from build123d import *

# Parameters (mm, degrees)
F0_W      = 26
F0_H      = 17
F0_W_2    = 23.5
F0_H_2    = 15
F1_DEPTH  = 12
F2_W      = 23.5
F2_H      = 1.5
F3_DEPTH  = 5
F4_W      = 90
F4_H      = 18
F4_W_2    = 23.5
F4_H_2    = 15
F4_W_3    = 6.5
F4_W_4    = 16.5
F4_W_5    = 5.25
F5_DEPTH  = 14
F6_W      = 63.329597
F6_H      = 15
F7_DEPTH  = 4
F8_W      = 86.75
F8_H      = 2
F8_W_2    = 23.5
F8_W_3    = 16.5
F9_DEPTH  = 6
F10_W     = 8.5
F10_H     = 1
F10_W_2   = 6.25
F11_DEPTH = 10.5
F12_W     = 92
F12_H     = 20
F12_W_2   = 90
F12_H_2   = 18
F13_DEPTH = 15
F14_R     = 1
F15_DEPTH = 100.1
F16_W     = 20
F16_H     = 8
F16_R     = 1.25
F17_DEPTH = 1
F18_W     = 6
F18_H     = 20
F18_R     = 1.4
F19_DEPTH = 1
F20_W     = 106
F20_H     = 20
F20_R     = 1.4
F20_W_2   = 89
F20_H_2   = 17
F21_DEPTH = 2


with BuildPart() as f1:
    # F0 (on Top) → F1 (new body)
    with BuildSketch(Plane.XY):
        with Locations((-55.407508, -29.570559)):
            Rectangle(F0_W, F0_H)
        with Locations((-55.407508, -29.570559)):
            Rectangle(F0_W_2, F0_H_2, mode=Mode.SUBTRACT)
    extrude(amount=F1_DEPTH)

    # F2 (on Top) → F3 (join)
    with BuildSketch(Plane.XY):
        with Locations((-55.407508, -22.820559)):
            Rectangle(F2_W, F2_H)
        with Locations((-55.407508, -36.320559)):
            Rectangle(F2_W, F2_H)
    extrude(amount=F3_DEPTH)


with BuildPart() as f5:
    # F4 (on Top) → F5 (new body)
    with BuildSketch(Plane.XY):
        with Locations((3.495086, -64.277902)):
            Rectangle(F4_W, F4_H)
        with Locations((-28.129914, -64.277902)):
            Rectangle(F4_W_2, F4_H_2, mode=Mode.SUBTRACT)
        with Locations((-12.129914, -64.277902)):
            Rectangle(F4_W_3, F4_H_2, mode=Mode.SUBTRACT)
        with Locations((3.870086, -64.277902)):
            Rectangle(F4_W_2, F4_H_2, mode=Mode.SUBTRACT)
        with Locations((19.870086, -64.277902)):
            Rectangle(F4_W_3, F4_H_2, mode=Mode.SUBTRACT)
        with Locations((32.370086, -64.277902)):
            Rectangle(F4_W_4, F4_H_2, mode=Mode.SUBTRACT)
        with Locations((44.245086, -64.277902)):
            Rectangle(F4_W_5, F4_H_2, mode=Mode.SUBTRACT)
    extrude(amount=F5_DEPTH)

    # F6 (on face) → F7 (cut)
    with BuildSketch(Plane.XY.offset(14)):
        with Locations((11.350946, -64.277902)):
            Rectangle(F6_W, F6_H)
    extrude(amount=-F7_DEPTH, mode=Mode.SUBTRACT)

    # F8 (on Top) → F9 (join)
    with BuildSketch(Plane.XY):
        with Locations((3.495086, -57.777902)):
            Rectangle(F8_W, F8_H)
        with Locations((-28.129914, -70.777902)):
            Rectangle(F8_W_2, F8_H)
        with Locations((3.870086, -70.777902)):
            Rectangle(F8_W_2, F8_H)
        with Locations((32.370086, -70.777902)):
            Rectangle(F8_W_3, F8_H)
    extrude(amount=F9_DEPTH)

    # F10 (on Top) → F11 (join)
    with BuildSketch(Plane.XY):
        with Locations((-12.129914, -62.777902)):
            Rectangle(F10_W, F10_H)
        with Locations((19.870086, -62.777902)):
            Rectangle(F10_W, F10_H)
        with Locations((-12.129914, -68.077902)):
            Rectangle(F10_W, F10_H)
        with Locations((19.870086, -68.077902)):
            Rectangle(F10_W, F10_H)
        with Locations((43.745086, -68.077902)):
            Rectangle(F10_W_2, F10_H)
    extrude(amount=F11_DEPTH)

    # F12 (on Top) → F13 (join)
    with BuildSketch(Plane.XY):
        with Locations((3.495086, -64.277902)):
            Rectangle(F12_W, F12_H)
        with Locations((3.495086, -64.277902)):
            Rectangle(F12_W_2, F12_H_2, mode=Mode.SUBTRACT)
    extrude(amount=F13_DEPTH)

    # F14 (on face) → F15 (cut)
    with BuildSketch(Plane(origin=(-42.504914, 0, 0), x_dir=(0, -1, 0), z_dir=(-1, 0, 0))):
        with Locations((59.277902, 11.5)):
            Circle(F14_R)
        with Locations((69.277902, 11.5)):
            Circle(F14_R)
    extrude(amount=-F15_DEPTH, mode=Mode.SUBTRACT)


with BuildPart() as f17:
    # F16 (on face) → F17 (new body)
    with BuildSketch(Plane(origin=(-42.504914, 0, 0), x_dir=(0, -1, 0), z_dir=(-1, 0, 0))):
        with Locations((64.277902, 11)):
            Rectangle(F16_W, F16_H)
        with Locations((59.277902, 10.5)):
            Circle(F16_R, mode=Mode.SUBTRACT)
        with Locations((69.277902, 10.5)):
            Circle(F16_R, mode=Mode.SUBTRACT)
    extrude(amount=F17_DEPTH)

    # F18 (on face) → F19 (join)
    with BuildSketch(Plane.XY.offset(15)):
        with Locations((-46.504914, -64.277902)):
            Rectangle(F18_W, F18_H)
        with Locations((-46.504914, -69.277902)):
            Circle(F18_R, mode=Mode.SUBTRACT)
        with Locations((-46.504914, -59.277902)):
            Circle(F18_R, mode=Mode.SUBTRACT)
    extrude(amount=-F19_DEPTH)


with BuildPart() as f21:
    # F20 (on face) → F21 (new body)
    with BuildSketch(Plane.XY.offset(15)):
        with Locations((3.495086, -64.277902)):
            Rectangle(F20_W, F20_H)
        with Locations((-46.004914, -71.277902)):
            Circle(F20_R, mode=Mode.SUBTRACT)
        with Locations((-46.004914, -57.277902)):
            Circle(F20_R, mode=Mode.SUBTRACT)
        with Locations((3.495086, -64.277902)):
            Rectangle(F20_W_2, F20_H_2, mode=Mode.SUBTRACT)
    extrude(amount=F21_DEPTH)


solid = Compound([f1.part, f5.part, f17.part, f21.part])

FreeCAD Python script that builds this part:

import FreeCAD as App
import Part
import Sketcher

doc = App.newDocument("Part")
body = doc.addObject("PartDesign::Body", "Body")

sketch1 = body.newObject("Sketcher::SketchObject", "Sketch")
sketch1.AttachmentSupport = (doc.getObject("XY_Plane"), [""])
sketch1.MapMode = "FlatFace"
sketch1.addGeometry([
    Part.LineSegment(App.Vector(-68, -21, 0), App.Vector(-68, -38, 0)),
    Part.LineSegment(App.Vector(-68, -38, 0), App.Vector(-42, -38, 0)),
    Part.LineSegment(App.Vector(-42, -38, 0), App.Vector(-42, -21, 0)),
    Part.LineSegment(App.Vector(-42, -21, 0), App.Vector(-68, -21, 0)),
    Part.LineSegment(App.Vector(-44, -37, 0), App.Vector(-67, -37, 0)),
    Part.LineSegment(App.Vector(-67, -37, 0), App.Vector(-67, -22, 0)),
    Part.LineSegment(App.Vector(-67, -22, 0), App.Vector(-44, -22, 0)),
    Part.LineSegment(App.Vector(-44, -22, 0), App.Vector(-44, -37, 0)),
], False)
sketch1.addConstraint([
    Sketcher.Constraint("Coincident", 0, 2, 1, 1),
    Sketcher.Constraint("Coincident", 1, 2, 2, 1),
    Sketcher.Constraint("Coincident", 2, 2, 3, 1),
    Sketcher.Constraint("Coincident", 3, 2, 0, 1),
    Sketcher.Constraint("Coincident", 4, 2, 5, 1),
    Sketcher.Constraint("Coincident", 5, 2, 6, 1),
    Sketcher.Constraint("Coincident", 6, 2, 7, 1),
    Sketcher.Constraint("Coincident", 7, 2, 4, 1),
    Sketcher.Constraint("Vertical", 0),
    Sketcher.Constraint("Horizontal", 1),
    Sketcher.Constraint("Vertical", 2),
    Sketcher.Constraint("Horizontal", 3),
    Sketcher.Constraint("Horizontal", 4),
    Sketcher.Constraint("Vertical", 5),
    Sketcher.Constraint("Horizontal", 6),
    Sketcher.Constraint("Vertical", 7),
    Sketcher.Constraint("DistanceX", 1, 1, 1, 2, 26.0),
    Sketcher.Constraint("DistanceY", 0, 2, 0, 1, 17.0),
    Sketcher.Constraint("DistanceY", 5, 1, 5, 2, 15.0),
    Sketcher.Constraint("DistanceX", 4, 2, 4, 1, 23.5),
    Sketcher.Constraint("DistanceY", 0, 2, 4, 2, 1.0),
    Sketcher.Constraint("DistanceX", 0, 2, 4, 2, 1.25),
    Sketcher.Constraint("DistanceX", 0, 2, -1, 1, 68.407508),
    Sketcher.Constraint("DistanceY", 0, 2, -1, 1, 38.070559),
])
pad1 = body.newObject("PartDesign::Pad", "Pad")
pad1.Profile = sketch1
pad1.Length = 12

sketch2 = body.newObject("Sketcher::SketchObject", "Sketch001")
sketch2.AttachmentSupport = (doc.getObject("XY_Plane"), [""])
sketch2.MapMode = "FlatFace"
sketch2.addGeometry([
    Part.LineSegment(App.Vector(-67.2, -22.1, 0), App.Vector(-67.2, -23.6, 0)),
    Part.LineSegment(App.Vector(-67.2, -23.6, 0), App.Vector(-43.7, -23.6, 0)),
    Part.LineSegment(App.Vector(-43.7, -23.6, 0), App.Vector(-43.7, -22.1, 0)),
    Part.LineSegment(App.Vector(-43.7, -22.1, 0), App.Vector(-67.2, -22.1, 0)),
    Part.LineSegment(App.Vector(-67.2, -35.6, 0), App.Vector(-67.2, -37.1, 0)),
    Part.LineSegment(App.Vector(-67.2, -37.1, 0), App.Vector(-43.7, -37.1, 0)),
    Part.LineSegment(App.Vector(-43.7, -37.1, 0), App.Vector(-43.7, -35.6, 0)),
    Part.LineSegment(App.Vector(-43.7, -35.6, 0), App.Vector(-67.2, -35.6, 0)),
], False)
sketch2.addConstraint([
    Sketcher.Constraint("Coincident", 0, 2, 1, 1),
    Sketcher.Constraint("Coincident", 1, 2, 2, 1),
    Sketcher.Constraint("Coincident", 2, 2, 3, 1),
    Sketcher.Constraint("Coincident", 3, 2, 0, 1),
    Sketcher.Constraint("Coincident", 4, 2, 5, 1),
    Sketcher.Constraint("Coincident", 5, 2, 6, 1),
    Sketcher.Constraint("Coincident", 6, 2, 7, 1),
    Sketcher.Constraint("Coincident", 7, 2, 4, 1),
    Sketcher.Constraint("Vertical", 0),
    Sketcher.Constraint("Horizontal", 1),
    Sketcher.Constraint("Vertical", 2),
    Sketcher.Constraint("Horizontal", 3),
    Sketcher.Constraint("Vertical", 4),
    Sketcher.Constraint("Horizontal", 5),
    Sketcher.Constraint("Vertical", 6),
    Sketcher.Constraint("Horizontal", 7),
    Sketcher.Constraint("Vertical", 3, 2, 4, 2),
    Sketcher.Constraint("Vertical", 2, 2, 5, 2),
    Sketcher.Constraint("Equal", 2, 4),
    Sketcher.Constraint("DistanceX", 1, 1, 1, 2, 23.5),
    Sketcher.Constraint("DistanceY", 0, 2, 0, 1, 1.5),
    Sketcher.Constraint("DistanceY", 4, 2, 3, 2, 15.0),
    Sketcher.Constraint("DistanceX", 0, 2, -1, 1, 67.157508),
    Sketcher.Constraint("DistanceY", 0, 2, -1, 1, 23.570559),
])
pad2 = body.newObject("PartDesign::Pad", "Pad001")
pad2.Profile = sketch2
pad2.Length = 5
body2 = doc.addObject("PartDesign::Body", "Body001")

sketch3 = body2.newObject("Sketcher::SketchObject", "Sketch002")
sketch3.AttachmentSupport = (doc.getObject("XY_Plane001"), [""])
sketch3.MapMode = "FlatFace"
sketch3.addGeometry([
    Part.LineSegment(App.Vector(-42, -55, 0), App.Vector(-42, -73, 0)),
    Part.LineSegment(App.Vector(-42, -73, 0), App.Vector(48, -73, 0)),
    Part.LineSegment(App.Vector(48, -73, 0), App.Vector(48, -55, 0)),
    Part.LineSegment(App.Vector(48, -55, 0), App.Vector(-42, -55, 0)),
    Part.LineSegment(App.Vector(-16, -72, 0), App.Vector(-40, -72, 0)),
    Part.LineSegment(App.Vector(-40, -72, 0), App.Vector(-40, -57, 0)),
    Part.LineSegment(App.Vector(-40, -57, 0), App.Vector(-16, -57, 0)),
    Part.LineSegment(App.Vector(-16, -57, 0), App.Vector(-16, -72, 0)),
    Part.LineSegment(App.Vector(-9, -72, 0), App.Vector(-15, -72, 0)),
    Part.LineSegment(App.Vector(-15, -72, 0), App.Vector(-15, -57, 0)),
    Part.LineSegment(App.Vector(-15, -57, 0), App.Vector(-9, -57, 0)),
    Part.LineSegment(App.Vector(-9, -57, 0), App.Vector(-9, -72, 0)),
    Part.LineSegment(App.Vector(16, -72, 0), App.Vector(-8, -72, 0)),
    Part.LineSegment(App.Vector(-8, -72, 0), App.Vector(-8, -57, 0)),
    Part.LineSegment(App.Vector(-8, -57, 0), App.Vector(16, -57, 0)),
    Part.LineSegment(App.Vector(16, -57, 0), App.Vector(16, -72, 0)),
    Part.LineSegment(App.Vector(23, -72, 0), App.Vector(17, -72, 0)),
    Part.LineSegment(App.Vector(17, -72, 0), App.Vector(17, -57, 0)),
    Part.LineSegment(App.Vector(17, -57, 0), App.Vector(23, -57, 0)),
    Part.LineSegment(App.Vector(23, -57, 0), App.Vector(23, -72, 0)),
    Part.LineSegment(App.Vector(41, -72, 0), App.Vector(24, -72, 0)),
    Part.LineSegment(App.Vector(24, -72, 0), App.Vector(24, -57, 0)),
    Part.LineSegment(App.Vector(24, -57, 0), App.Vector(41, -57, 0)),
    Part.LineSegment(App.Vector(41, -57, 0), App.Vector(41, -72, 0)),
    Part.LineSegment(App.Vector(47, -72, 0), App.Vector(42, -72, 0)),
    Part.LineSegment(App.Vector(42, -72, 0), App.Vector(42, -57, 0)),
    Part.LineSegment(App.Vector(42, -57, 0), App.Vector(47, -57, 0)),
    Part.LineSegment(App.Vector(47, -57, 0), App.Vector(47, -72, 0)),
], False)
sketch3.addConstraint([
    Sketcher.Constraint("Coincident", 0, 2, 1, 1),
    Sketcher.Constraint("Coincident", 1, 2, 2, 1),
    Sketcher.Constraint("Coincident", 2, 2, 3, 1),
    Sketcher.Constraint("Coincident", 3, 2, 0, 1),
    Sketcher.Constraint("Coincident", 4, 2, 5, 1),
    Sketcher.Constraint("Coincident", 5, 2, 6, 1),
    Sketcher.Constraint("Coincident", 6, 2, 7, 1),
    Sketcher.Constraint("Coincident", 7, 2, 4, 1),
    Sketcher.Constraint("Coincident", 8, 2, 9, 1),
    Sketcher.Constraint("Coincident", 9, 2, 10, 1),
    Sketcher.Constraint("Coincident", 10, 2, 11, 1),
    Sketcher.Constraint("Coincident", 11, 2, 8, 1),
    Sketcher.Constraint("Coincident", 12, 2, 13, 1),
    Sketcher.Constraint("Coincident", 13, 2, 14, 1),
    Sketcher.Constraint("Coincident", 14, 2, 15, 1),
    Sketcher.Constraint("Coincident", 15, 2, 12, 1),
    Sketcher.Constraint("Coincident", 16, 2, 17, 1),
    Sketcher.Constraint("Coincident", 17, 2, 18, 1),
    Sketcher.Constraint("Coincident", 18, 2, 19, 1),
    Sketcher.Constraint("Coincident", 19, 2, 16, 1),
    Sketcher.Constraint("Coincident", 20, 2, 21, 1),
    Sketcher.Constraint("Coincident", 21, 2, 22, 1),
    Sketcher.Constraint("Coincident", 22, 2, 23, 1),
    Sketcher.Constraint("Coincident", 23, 2, 20, 1),
    Sketcher.Constraint("Coincident", 24, 2, 25, 1),
    Sketcher.Constraint("Coincident", 25, 2, 26, 1),
    Sketcher.Constraint("Coincident", 26, 2, 27, 1),
    Sketcher.Constraint("Coincident", 27, 2, 24, 1),
    Sketcher.Constraint("Vertical", 0),
    Sketcher.Constraint("Horizontal", 1),
    Sketcher.Constraint("Vertical", 2),
    Sketcher.Constraint("Horizontal", 3),
    Sketcher.Constraint("Horizontal", 4),
    Sketcher.Constraint("Vertical", 5),
    Sketcher.Constraint("Horizontal", 6),
    Sketcher.Constraint("Vertical", 7),
    Sketcher.Constraint("Horizontal", 8),
    Sketcher.Constraint("Vertical", 9),
    Sketcher.Constraint("Horizontal", 10),
    Sketcher.Constraint("Vertical", 11),
    Sketcher.Constraint("Horizontal", 12),
    Sketcher.Constraint("Vertical", 13),
    Sketcher.Constraint("Horizontal", 14),
    Sketcher.Constraint("Vertical", 15),
    Sketcher.Constraint("Horizontal", 16),
    Sketcher.Constraint("Vertical", 17),
    Sketcher.Constraint("Horizontal", 18),
    Sketcher.Constraint("Vertical", 19),
    Sketcher.Constraint("Horizontal", 20),
    Sketcher.Constraint("Vertical", 21),
    Sketcher.Constraint("Horizontal", 22),
    Sketcher.Constraint("Vertical", 23),
    Sketcher.Constraint("Horizontal", 24),
    Sketcher.Constraint("Vertical", 25),
    Sketcher.Constraint("Horizontal", 26),
    Sketcher.Constraint("Vertical", 27),
    Sketcher.Constraint("Horizontal", 7, 2, 8, 2),
    Sketcher.Constraint("Horizontal", 6, 2, 9, 2),
    Sketcher.Constraint("Horizontal", 11, 2, 12, 2),
    Sketcher.Constraint("Horizontal", 10, 2, 13, 2),
    Sketcher.Constraint("Horizontal", 15, 2, 16, 2),
    Sketcher.Constraint("Horizontal", 14, 2, 17, 2),
    Sketcher.Constraint("Horizontal", 19, 2, 20, 2),
    Sketcher.Constraint("Horizontal", 18, 2, 21, 2),
    Sketcher.Constraint("Horizontal", 23, 2, 24, 2),
    Sketcher.Constraint("Horizontal", 22, 2, 25, 2),
    Sketcher.Constraint("Equal", 6, 12),
    Sketcher.Constraint("Equal", 10, 16),
    Sketcher.Constraint("DistanceX", 1, 1, 1, 2, 90.0),
    Sketcher.Constraint("DistanceY", 0, 2, 0, 1, 18.0),
    Sketcher.Constraint("DistanceY", 5, 1, 5, 2, 15.0),
    Sketcher.Constraint("DistanceX", 4, 2, 4, 1, 23.5),
    Sketcher.Constraint("DistanceX", 8, 2, 8, 1, 6.5),
    Sketcher.Constraint("DistanceX", 20, 2, 20, 1, 16.5),
    Sketcher.Constraint("DistanceX", 7, 2, 8, 2, 1.0),
    Sketcher.Constraint("DistanceX", 11, 2, 12, 2, 1.0),
    Sketcher.Constraint("DistanceX", 15, 2, 16, 2, 1.0),
    Sketcher.Constraint("DistanceX", 19, 2, 20, 2, 1.0),
    Sketcher.Constraint("DistanceX", 23, 2, 24, 2, 1.0),
    Sketcher.Constraint("DistanceX", 24, 2, 24, 1, 5.25),
    Sketcher.Constraint("DistanceY", 0, 2, 4, 2, 1.5),
    Sketcher.Constraint("DistanceX", 0, 2, 4, 2, 1.625),
    Sketcher.Constraint("DistanceY", 0, 2, -1, 1, 73.277902),
    Sketcher.Constraint("DistanceX", 0, 2, -1, 1, 41.504914),
])
pad3 = body2.newObject("PartDesign::Pad", "Pad002")
pad3.Profile = sketch3
pad3.Length = 14

sketch4 = body2.newObject("Sketcher::SketchObject", "Sketch003")
sketch4.AttachmentSupport = (doc.getObject("XY_Plane001"), [""])
sketch4.MapMode = "FlatFace"
sketch4.AttachmentOffset = App.Placement(App.Vector(0, 0, 14), App.Rotation())
sketch4.addGeometry([
    Part.LineSegment(App.Vector(-20, -57, 0), App.Vector(-20, -72, 0)),
    Part.LineSegment(App.Vector(-20, -72, 0), App.Vector(43, -72, 0)),
    Part.LineSegment(App.Vector(43, -72, 0), App.Vector(43, -57, 0)),
    Part.LineSegment(App.Vector(43, -57, 0), App.Vector(-20, -57, 0)),
], False)
sketch4.addConstraint([
    Sketcher.Constraint("Coincident", 0, 2, 1, 1),
    Sketcher.Constraint("Coincident", 1, 2, 2, 1),
    Sketcher.Constraint("Coincident", 2, 2, 3, 1),
    Sketcher.Constraint("Coincident", 3, 2, 0, 1),
    Sketcher.Constraint("Vertical", 0),
    Sketcher.Constraint("Horizontal", 1),
    Sketcher.Constraint("Vertical", 2),
    Sketcher.Constraint("Horizontal", 3),
    Sketcher.Constraint("DistanceY", 0, 2, 0, 1, 15.0),
    Sketcher.Constraint("DistanceY", 0, 2, -1, 1, 71.777902),
    Sketcher.Constraint("DistanceX", 1, 1, 1, 2, 63.329597),
    Sketcher.Constraint("DistanceX", 0, 2, -1, 1, 20.313852),
])
pocket1 = body2.newObject("PartDesign::Pocket", "Pocket")
pocket1.Profile = sketch4
pocket1.Length = 4

sketch5 = body2.newObject("Sketcher::SketchObject", "Sketch004")
sketch5.AttachmentSupport = (doc.getObject("XY_Plane001"), [""])
sketch5.MapMode = "FlatFace"
sketch5.addGeometry([
    Part.LineSegment(App.Vector(-39.9, -56.8, 0), App.Vector(-39.9, -58.8, 0)),
    Part.LineSegment(App.Vector(-39.9, -58.8, 0), App.Vector(46.9, -58.8, 0)),
    Part.LineSegment(App.Vector(46.9, -58.8, 0), App.Vector(46.9, -56.8, 0)),
    Part.LineSegment(App.Vector(46.9, -56.8, 0), App.Vector(-39.9, -56.8, 0)),
    Part.LineSegment(App.Vector(-39.9, -69.8, 0), App.Vector(-39.9, -71.8, 0)),
    Part.LineSegment(App.Vector(-39.9, -71.8, 0), App.Vector(-16.4, -71.8, 0)),
    Part.LineSegment(App.Vector(-16.4, -71.8, 0), App.Vector(-16.4, -69.8, 0)),
    Part.LineSegment(App.Vector(-16.4, -69.8, 0), App.Vector(-39.9, -69.8, 0)),
    Part.LineSegment(App.Vector(-7.9, -69.8, 0), App.Vector(-7.9, -71.8, 0)),
    Part.LineSegment(App.Vector(-7.9, -71.8, 0), App.Vector(15.6, -71.8, 0)),
    Part.LineSegment(App.Vector(15.6, -71.8, 0), App.Vector(15.6, -69.8, 0)),
    Part.LineSegment(App.Vector(15.6, -69.8, 0), App.Vector(-7.9, -69.8, 0)),
    Part.LineSegment(App.Vector(24.1, -69.8, 0), App.Vector(24.1, -71.8, 0)),
    Part.LineSegment(App.Vector(24.1, -71.8, 0), App.Vector(40.6, -71.8, 0)),
    Part.LineSegment(App.Vector(40.6, -71.8, 0), App.Vector(40.6, -69.8, 0)),
    Part.LineSegment(App.Vector(40.6, -69.8, 0), App.Vector(24.1, -69.8, 0)),
], False)
sketch5.addConstraint([
    Sketcher.Constraint("Coincident", 0, 2, 1, 1),
    Sketcher.Constraint("Coincident", 1, 2, 2, 1),
    Sketcher.Constraint("Coincident", 2, 2, 3, 1),
    Sketcher.Constraint("Coincident", 3, 2, 0, 1),
    Sketcher.Constraint("Coincident", 4, 2, 5, 1),
    Sketcher.Constraint("Coincident", 5, 2, 6, 1),
    Sketcher.Constraint("Coincident", 6, 2, 7, 1),
    Sketcher.Constraint("Coincident", 7, 2, 4, 1),
    Sketcher.Constraint("Coincident", 8, 2, 9, 1),
    Sketcher.Constraint("Coincident", 9, 2, 10, 1),
    Sketcher.Constraint("Coincident", 10, 2, 11, 1),
    Sketcher.Constraint("Coincident", 11, 2, 8, 1),
    Sketcher.Constraint("Coincident", 12, 2, 13, 1),
    Sketcher.Constraint("Coincident", 13, 2, 14, 1),
    Sketcher.Constraint("Coincident", 14, 2, 15, 1),
    Sketcher.Constraint("Coincident", 15, 2, 12, 1),
    Sketcher.Constraint("Vertical", 0),
    Sketcher.Constraint("Horizontal", 1),
    Sketcher.Constraint("Vertical", 2),
    Sketcher.Constraint("Horizontal", 3),
    Sketcher.Constraint("Vertical", 4),
    Sketcher.Constraint("Horizontal", 5),
    Sketcher.Constraint("Vertical", 6),
    Sketcher.Constraint("Horizontal", 7),
    Sketcher.Constraint("Vertical", 8),
    Sketcher.Constraint("Horizontal", 9),
    Sketcher.Constraint("Vertical", 10),
    Sketcher.Constraint("Horizontal", 11),
    Sketcher.Constraint("Vertical", 12),
    Sketcher.Constraint("Horizontal", 13),
    Sketcher.Constraint("Vertical", 14),
    Sketcher.Constraint("Horizontal", 15),
    Sketcher.Constraint("Horizontal", 5, 2, 8, 2),
    Sketcher.Constraint("Horizontal", 7, 2, 10, 2),
    Sketcher.Constraint("Horizontal", 9, 2, 12, 2),
    Sketcher.Constraint("Horizontal", 11, 2, 14, 2),
    Sketcher.Constraint("Vertical", 3, 2, 4, 2),
    Sketcher.Constraint("Equal", 7, 9),
    Sketcher.Constraint("Equal", 2, 4),
    Sketcher.Constraint("DistanceY", 0, 2, 0, 1, 2.0),
    Sketcher.Constraint("DistanceX", 5, 1, 5, 2, 23.5),
    Sketcher.Constraint("DistanceX", 13, 1, 13, 2, 16.5),
    Sketcher.Constraint("DistanceY", 4, 2, 0, 2, 13.0),
    Sketcher.Constraint("DistanceX", 4, 2, 8, 2, 32.0),
    Sketcher.Constraint("DistanceX", 8, 2, 12, 2, 32.0),
    Sketcher.Constraint("DistanceX", 1, 1, 1, 2, 86.75),
    Sketcher.Constraint("DistanceY", 0, 2, -1, 1, 58.777902),
    Sketcher.Constraint("DistanceX", 0, 2, -1, 1, 39.879914),
])
pad4 = body2.newObject("PartDesign::Pad", "Pad003")
pad4.Profile = sketch5
pad4.Length = 6

sketch6 = body2.newObject("Sketcher::SketchObject", "Sketch005")
sketch6.AttachmentSupport = (doc.getObject("XY_Plane001"), [""])
sketch6.MapMode = "FlatFace"
sketch6.addGeometry([
    Part.LineSegment(App.Vector(-16.4, -62.3, 0), App.Vector(-16.4, -63.3, 0)),
    Part.LineSegment(App.Vector(-16.4, -63.3, 0), App.Vector(-7.9, -63.3, 0)),
    Part.LineSegment(App.Vector(-7.9, -63.3, 0), App.Vector(-7.9, -62.3, 0)),
    Part.LineSegment(App.Vector(-7.9, -62.3, 0), App.Vector(-16.4, -62.3, 0)),
    Part.LineSegment(App.Vector(15.6, -62.3, 0), App.Vector(15.6, -63.3, 0)),
    Part.LineSegment(App.Vector(15.6, -63.3, 0), App.Vector(24.1, -63.3, 0)),
    Part.LineSegment(App.Vector(24.1, -63.3, 0), App.Vector(24.1, -62.3, 0)),
    Part.LineSegment(App.Vector(24.1, -62.3, 0), App.Vector(15.6, -62.3, 0)),
    Part.LineSegment(App.Vector(-16.4, -67.6, 0), App.Vector(-16.4, -68.6, 0)),
    Part.LineSegment(App.Vector(-16.4, -68.6, 0), App.Vector(-7.9, -68.6, 0)),
    Part.LineSegment(App.Vector(-7.9, -68.6, 0), App.Vector(-7.9, -67.6, 0)),
    Part.LineSegment(App.Vector(-7.9, -67.6, 0), App.Vector(-16.4, -67.6, 0)),
    Part.LineSegment(App.Vector(15.6, -67.6, 0), App.Vector(15.6, -68.6, 0)),
    Part.LineSegment(App.Vector(15.6, -68.6, 0), App.Vector(24.1, -68.6, 0)),
    Part.LineSegment(App.Vector(24.1, -68.6, 0), App.Vector(24.1, -67.6, 0)),
    Part.LineSegment(App.Vector(24.1, -67.6, 0), App.Vector(15.6, -67.6, 0)),
    Part.LineSegment(App.Vector(40.6, -67.6, 0), App.Vector(40.6, -68.6, 0)),
    Part.LineSegment(App.Vector(40.6, -68.6, 0), App.Vector(46.9, -68.6, 0)),
    Part.LineSegment(App.Vector(46.9, -68.6, 0), App.Vector(46.9, -67.6, 0)),
    Part.LineSegment(App.Vector(46.9, -67.6, 0), App.Vector(40.6, -67.6, 0)),
], False)
sketch6.addConstraint([
    Sketcher.Constraint("Coincident", 0, 2, 1, 1),
    Sketcher.Constraint("Coincident", 1, 2, 2, 1),
    Sketcher.Constraint("Coincident", 2, 2, 3, 1),
    Sketcher.Constraint("Coincident", 3, 2, 0, 1),
    Sketcher.Constraint("Coincident", 4, 2, 5, 1),
    Sketcher.Constraint("Coincident", 5, 2, 6, 1),
    Sketcher.Constraint("Coincident", 6, 2, 7, 1),
    Sketcher.Constraint("Coincident", 7, 2, 4, 1),
    Sketcher.Constraint("Coincident", 8, 2, 9, 1),
    Sketcher.Constraint("Coincident", 9, 2, 10, 1),
    Sketcher.Constraint("Coincident", 10, 2, 11, 1),
    Sketcher.Constraint("Coincident", 11, 2, 8, 1),
    Sketcher.Constraint("Coincident", 12, 2, 13, 1),
    Sketcher.Constraint("Coincident", 13, 2, 14, 1),
    Sketcher.Constraint("Coincident", 14, 2, 15, 1),
    Sketcher.Constraint("Coincident", 15, 2, 12, 1),
    Sketcher.Constraint("Coincident", 16, 2, 17, 1),
    Sketcher.Constraint("Coincident", 17, 2, 18, 1),
    Sketcher.Constraint("Coincident", 18, 2, 19, 1),
    Sketcher.Constraint("Coincident", 19, 2, 16, 1),
    Sketcher.Constraint("Vertical", 0),
    Sketcher.Constraint("Horizontal", 1),
    Sketcher.Constraint("Vertical", 2),
    Sketcher.Constraint("Horizontal", 3),
    Sketcher.Constraint("Vertical", 4),
    Sketcher.Constraint("Horizontal", 5),
    Sketcher.Constraint("Vertical", 6),
    Sketcher.Constraint("Horizontal", 7),
    Sketcher.Constraint("Vertical", 8),
    Sketcher.Constraint("Horizontal", 9),
    Sketcher.Constraint("Vertical", 10),
    Sketcher.Constraint("Horizontal", 11),
    Sketcher.Constraint("Vertical", 12),
    Sketcher.Constraint("Horizontal", 13),
    Sketcher.Constraint("Vertical", 14),
    Sketcher.Constraint("Horizontal", 15),
    Sketcher.Constraint("Vertical", 16),
    Sketcher.Constraint("Horizontal", 17),
    Sketcher.Constraint("Vertical", 18),
    Sketcher.Constraint("Horizontal", 19),
    Sketcher.Constraint("Horizontal", 1, 2, 4, 2),
    Sketcher.Constraint("Horizontal", 3, 2, 6, 2),
    Sketcher.Constraint("Horizontal", 9, 2, 12, 2),
    Sketcher.Constraint("Horizontal", 11, 2, 14, 2),
    Sketcher.Constraint("Horizontal", 13, 2, 16, 2),
    Sketcher.Constraint("Horizontal", 15, 2, 18, 2),
    Sketcher.Constraint("Vertical", 3, 2, 8, 2),
    Sketcher.Constraint("Vertical", 2, 2, 9, 2),
    Sketcher.Constraint("Vertical", 7, 2, 12, 2),
    Sketcher.Constraint("Vertical", 6, 2, 13, 2),
    Sketcher.Constraint("Equal", 3, 5),
    Sketcher.Constraint("Equal", 6, 8),
    Sketcher.Constraint("DistanceY", 0, 2, 0, 1, 1.0),
    Sketcher.Constraint("DistanceX", 1, 1, 1, 2, 8.5),
    Sketcher.Constraint("DistanceX", 0, 2, 4, 2, 32.0),
    Sketcher.Constraint("DistanceX", 12, 2, 16, 2, 25.0),
    Sketcher.Constraint("DistanceX", 17, 1, 17, 2, 6.25),
    Sketcher.Constraint("DistanceY", 8, 2, 0, 2, 5.3),
    Sketcher.Constraint("DistanceY", 0, 2, -1, 1, 63.277902),
    Sketcher.Constraint("DistanceX", 0, 2, -1, 1, 16.379914),
])
pad5 = body2.newObject("PartDesign::Pad", "Pad004")
pad5.Profile = sketch6
pad5.Length = 10.5

sketch7 = body2.newObject("Sketcher::SketchObject", "Sketch006")
sketch7.AttachmentSupport = (doc.getObject("XY_Plane001"), [""])
sketch7.MapMode = "FlatFace"
sketch7.addGeometry([
    Part.LineSegment(App.Vector(-43, -54, 0), App.Vector(-43, -74, 0)),
    Part.LineSegment(App.Vector(-43, -74, 0), App.Vector(49, -74, 0)),
    Part.LineSegment(App.Vector(49, -74, 0), App.Vector(49, -54, 0)),
    Part.LineSegment(App.Vector(49, -54, 0), App.Vector(-43, -54, 0)),
    Part.LineSegment(App.Vector(48, -73, 0), App.Vector(-42, -73, 0)),
    Part.LineSegment(App.Vector(-42, -73, 0), App.Vector(-42, -55, 0)),
    Part.LineSegment(App.Vector(-42, -55, 0), App.Vector(48, -55, 0)),
    Part.LineSegment(App.Vector(48, -55, 0), App.Vector(48, -73, 0)),
], False)
sketch7.addConstraint([
    Sketcher.Constraint("Coincident", 0, 2, 1, 1),
    Sketcher.Constraint("Coincident", 1, 2, 2, 1),
    Sketcher.Constraint("Coincident", 2, 2, 3, 1),
    Sketcher.Constraint("Coincident", 3, 2, 0, 1),
    Sketcher.Constraint("Coincident", 4, 2, 5, 1),
    Sketcher.Constraint("Coincident", 5, 2, 6, 1),
    Sketcher.Constraint("Coincident", 6, 2, 7, 1),
    Sketcher.Constraint("Coincident", 7, 2, 4, 1),
    Sketcher.Constraint("Vertical", 0),
    Sketcher.Constraint("Horizontal", 1),
    Sketcher.Constraint("Vertical", 2),
    Sketcher.Constraint("Horizontal", 3),
    Sketcher.Constraint("Horizontal", 4),
    Sketcher.Constraint("Vertical", 5),
    Sketcher.Constraint("Horizontal", 6),
    Sketcher.Constraint("Vertical", 7),
    Sketcher.Constraint("DistanceX", 1, 1, 1, 2, 92.0),
    Sketcher.Constraint("DistanceX", 4, 2, 4, 1, 90.0),
    Sketcher.Constraint("DistanceY", 0, 2, 0, 1, 20.0),
    Sketcher.Constraint("DistanceY", 5, 1, 5, 2, 18.0),
    Sketcher.Constraint("DistanceX", 0, 2, 4, 2, 1.0),
    Sketcher.Constraint("DistanceY", 0, 2, 4, 2, 1.0),
    Sketcher.Constraint("DistanceY", 0, 2, -1, 1, 74.277902),
    Sketcher.Constraint("DistanceX", 0, 2, -1, 1, 42.504914),
])
pad6 = body2.newObject("PartDesign::Pad", "Pad005")
pad6.Profile = sketch7
pad6.Length = 15

sketch8 = body2.newObject("Sketcher::SketchObject", "Sketch007")
sketch8.AttachmentSupport = (doc.getObject("YZ_Plane001"), [""])
sketch8.MapMode = "FlatFace"
sketch8.AttachmentOffset = App.Placement(App.Vector(0, 0, -42.504914), App.Rotation())
sketch8.addGeometry([
    Part.Circle(App.Vector(-59.3, 11.5, 0), App.Vector(0, 0, 1), 1),
    Part.Circle(App.Vector(-69.3, 11.5, 0), App.Vector(0, 0, 1), 1),
], False)
sketch8.addConstraint([
    Sketcher.Constraint("Equal", 0, 1),
    Sketcher.Constraint("Horizontal", 0, 3, 1, 3),
    Sketcher.Constraint("Diameter", 0, 2.0),
    Sketcher.Constraint("DistanceX", 1, 3, 0, 3, 10.0),
    Sketcher.Constraint("DistanceY", -1, 1, 0, 3, 11.5),
    Sketcher.Constraint("DistanceX", 0, 3, -1, 1, 59.277902),
])
pocket2 = body2.newObject("PartDesign::Pocket", "Pocket001")
pocket2.Profile = sketch8
pocket2.Length = 100.1
pocket2.Reversed = True
body3 = doc.addObject("PartDesign::Body", "Body002")

sketch9 = body3.newObject("Sketcher::SketchObject", "Sketch008")
sketch9.AttachmentSupport = (doc.getObject("YZ_Plane002"), [""])
sketch9.MapMode = "FlatFace"
sketch9.AttachmentOffset = App.Placement(App.Vector(0, 0, -42.504914), App.Rotation())
sketch9.addGeometry([
    Part.LineSegment(App.Vector(-54.3, 15, 0), App.Vector(-54.3, 7, 0)),
    Part.LineSegment(App.Vector(-54.3, 7, 0), App.Vector(-74.3, 7, 0)),
    Part.LineSegment(App.Vector(-74.3, 7, 0), App.Vector(-74.3, 15, 0)),
    Part.LineSegment(App.Vector(-74.3, 15, 0), App.Vector(-54.3, 15, 0)),
    Part.Circle(App.Vector(-59.3, 10.5, 0), App.Vector(0, 0, 1), 1.2),
    Part.Circle(App.Vector(-69.3, 10.5, 0), App.Vector(0, 0, 1), 1.2),
], False)
sketch9.addConstraint([
    Sketcher.Constraint("Coincident", 0, 2, 1, 1),
    Sketcher.Constraint("Coincident", 1, 2, 2, 1),
    Sketcher.Constraint("Coincident", 2, 2, 3, 1),
    Sketcher.Constraint("Coincident", 3, 2, 0, 1),
    Sketcher.Constraint("Vertical", 0),
    Sketcher.Constraint("Horizontal", 1),
    Sketcher.Constraint("Vertical", 2),
    Sketcher.Constraint("Horizontal", 3),
    Sketcher.Constraint("Equal", 4, 5),
    Sketcher.Constraint("Horizontal", 4, 3, 5, 3),
    Sketcher.Constraint("Diameter", 4, 2.5),
    Sketcher.Constraint("DistanceX", 1, 2, 1, 1, 20.0),
    Sketcher.Constraint("DistanceY", 0, 2, 0, 1, 8.0),
    Sketcher.Constraint("DistanceY", -1, 1, 0, 2, 7.0),
    Sketcher.Constraint("DistanceX", 5, 3, 4, 3, 10.0),
    Sketcher.Constraint("DistanceX", 4, 3, 0, 2, 5.0),
    Sketcher.Constraint("DistanceY", -1, 1, 4, 3, 10.5),
    Sketcher.Constraint("DistanceX", 4, 3, -1, 1, 59.277902),
])
pad7 = body3.newObject("PartDesign::Pad", "Pad006")
pad7.Profile = sketch9
pad7.Length = 1
pad7.Reversed = True

sketch10 = body3.newObject("Sketcher::SketchObject", "Sketch009")
sketch10.AttachmentSupport = (doc.getObject("XY_Plane002"), [""])
sketch10.MapMode = "FlatFace"
sketch10.AttachmentOffset = App.Placement(App.Vector(0, 0, 15), App.Rotation())
sketch10.addGeometry([
    Part.LineSegment(App.Vector(-49.5, -54.3, 0), App.Vector(-49.5, -74.3, 0)),
    Part.LineSegment(App.Vector(-49.5, -74.3, 0), App.Vector(-43.5, -74.3, 0)),
    Part.LineSegment(App.Vector(-43.5, -74.3, 0), App.Vector(-43.5, -54.3, 0)),
    Part.LineSegment(App.Vector(-43.5, -54.3, 0), App.Vector(-49.5, -54.3, 0)),
    Part.Circle(App.Vector(-46.5, -69.3, 0), App.Vector(0, 0, 1), 1.4),
    Part.Circle(App.Vector(-46.5, -59.3, 0), App.Vector(0, 0, 1), 1.4),
], False)
sketch10.addConstraint([
    Sketcher.Constraint("Coincident", 0, 2, 1, 1),
    Sketcher.Constraint("Coincident", 1, 2, 2, 1),
    Sketcher.Constraint("Coincident", 2, 2, 3, 1),
    Sketcher.Constraint("Coincident", 3, 2, 0, 1),
    Sketcher.Constraint("Vertical", 0),
    Sketcher.Constraint("Horizontal", 1),
    Sketcher.Constraint("Vertical", 2),
    Sketcher.Constraint("Horizontal", 3),
    Sketcher.Constraint("Equal", 4, 5),
    Sketcher.Constraint("Vertical", 4, 3, 5, 3),
    Sketcher.Constraint("Diameter", 4, 2.8),
    Sketcher.Constraint("DistanceX", 1, 1, 1, 2, 6.0),
    Sketcher.Constraint("DistanceY", 0, 2, 0, 1, 20.0),
    Sketcher.Constraint("DistanceY", 4, 3, 5, 3, 10.0),
    Sketcher.Constraint("DistanceX", 0, 2, 4, 3, 3.0),
    Sketcher.Constraint("DistanceY", 0, 2, 4, 3, 5.0),
    Sketcher.Constraint("DistanceY", 4, 3, -1, 1, 69.277902),
    Sketcher.Constraint("DistanceX", 4, 3, -1, 1, 46.504914),
])
pad8 = body3.newObject("PartDesign::Pad", "Pad007")
pad8.Profile = sketch10
pad8.Length = 1
pad8.Reversed = True
body4 = doc.addObject("PartDesign::Body", "Body003")

sketch11 = body4.newObject("Sketcher::SketchObject", "Sketch010")
sketch11.AttachmentSupport = (doc.getObject("XY_Plane003"), [""])
sketch11.MapMode = "FlatFace"
sketch11.AttachmentOffset = App.Placement(App.Vector(0, 0, 15), App.Rotation())
sketch11.addGeometry([
    Part.LineSegment(App.Vector(-49.5, -54.3, 0), App.Vector(-49.5, -74.3, 0)),
    Part.LineSegment(App.Vector(-49.5, -74.3, 0), App.Vector(56.5, -74.3, 0)),
    Part.LineSegment(App.Vector(56.5, -74.3, 0), App.Vector(56.5, -54.3, 0)),
    Part.LineSegment(App.Vector(56.5, -54.3, 0), App.Vector(-49.5, -54.3, 0)),
    Part.Circle(App.Vector(-46, -71.3, 0), App.Vector(0, 0, 1), 1.4),
    Part.Circle(App.Vector(-46, -57.3, 0), App.Vector(0, 0, 1), 1.4),
    Part.LineSegment(App.Vector(48, -72.8, 0), App.Vector(-41, -72.8, 0)),
    Part.LineSegment(App.Vector(-41, -72.8, 0), App.Vector(-41, -55.8, 0)),
    Part.LineSegment(App.Vector(-41, -55.8, 0), App.Vector(48, -55.8, 0)),
    Part.LineSegment(App.Vector(48, -55.8, 0), App.Vector(48, -72.8, 0)),
], False)
sketch11.addConstraint([
    Sketcher.Constraint("Coincident", 0, 2, 1, 1),
    Sketcher.Constraint("Coincident", 1, 2, 2, 1),
    Sketcher.Constraint("Coincident", 2, 2, 3, 1),
    Sketcher.Constraint("Coincident", 3, 2, 0, 1),
    Sketcher.Constraint("Coincident", 6, 2, 7, 1),
    Sketcher.Constraint("Coincident", 7, 2, 8, 1),
    Sketcher.Constraint("Coincident", 8, 2, 9, 1),
    Sketcher.Constraint("Coincident", 9, 2, 6, 1),
    Sketcher.Constraint("Vertical", 0),
    Sketcher.Constraint("Horizontal", 1),
    Sketcher.Constraint("Vertical", 2),
    Sketcher.Constraint("Horizontal", 3),
    Sketcher.Constraint("Horizontal", 6),
    Sketcher.Constraint("Vertical", 7),
    Sketcher.Constraint("Horizontal", 8),
    Sketcher.Constraint("Vertical", 9),
    Sketcher.Constraint("Equal", 4, 5),
    Sketcher.Constraint("Vertical", 4, 3, 5, 3),
    Sketcher.Constraint("Diameter", 4, 2.8),
    Sketcher.Constraint("DistanceX", 1, 1, 1, 2, 106.0),
    Sketcher.Constraint("DistanceX", 6, 2, 6, 1, 89.0),
    Sketcher.Constraint("DistanceY", 0, 2, 0, 1, 20.0),
    Sketcher.Constraint("DistanceY", 7, 1, 7, 2, 17.0),
    Sketcher.Constraint("DistanceY", 4, 3, 5, 3, 14.0),
    Sketcher.Constraint("DistanceY", 0, 2, 4, 3, 3.0),
    Sketcher.Constraint("DistanceX", 4, 3, 6, 2, 5.0),
    Sketcher.Constraint("DistanceX", 0, 2, 4, 3, 3.5),
    Sketcher.Constraint("DistanceY", 6, 2, 4, 3, 1.5),
    Sketcher.Constraint("DistanceY", 4, 3, -1, 1, 71.277902),
    Sketcher.Constraint("DistanceX", 4, 3, -1, 1, 46.004914),
])
pad9 = body4.newObject("PartDesign::Pad", "Pad008")
pad9.Profile = sketch11
pad9.Length = 2

doc.recompute()
